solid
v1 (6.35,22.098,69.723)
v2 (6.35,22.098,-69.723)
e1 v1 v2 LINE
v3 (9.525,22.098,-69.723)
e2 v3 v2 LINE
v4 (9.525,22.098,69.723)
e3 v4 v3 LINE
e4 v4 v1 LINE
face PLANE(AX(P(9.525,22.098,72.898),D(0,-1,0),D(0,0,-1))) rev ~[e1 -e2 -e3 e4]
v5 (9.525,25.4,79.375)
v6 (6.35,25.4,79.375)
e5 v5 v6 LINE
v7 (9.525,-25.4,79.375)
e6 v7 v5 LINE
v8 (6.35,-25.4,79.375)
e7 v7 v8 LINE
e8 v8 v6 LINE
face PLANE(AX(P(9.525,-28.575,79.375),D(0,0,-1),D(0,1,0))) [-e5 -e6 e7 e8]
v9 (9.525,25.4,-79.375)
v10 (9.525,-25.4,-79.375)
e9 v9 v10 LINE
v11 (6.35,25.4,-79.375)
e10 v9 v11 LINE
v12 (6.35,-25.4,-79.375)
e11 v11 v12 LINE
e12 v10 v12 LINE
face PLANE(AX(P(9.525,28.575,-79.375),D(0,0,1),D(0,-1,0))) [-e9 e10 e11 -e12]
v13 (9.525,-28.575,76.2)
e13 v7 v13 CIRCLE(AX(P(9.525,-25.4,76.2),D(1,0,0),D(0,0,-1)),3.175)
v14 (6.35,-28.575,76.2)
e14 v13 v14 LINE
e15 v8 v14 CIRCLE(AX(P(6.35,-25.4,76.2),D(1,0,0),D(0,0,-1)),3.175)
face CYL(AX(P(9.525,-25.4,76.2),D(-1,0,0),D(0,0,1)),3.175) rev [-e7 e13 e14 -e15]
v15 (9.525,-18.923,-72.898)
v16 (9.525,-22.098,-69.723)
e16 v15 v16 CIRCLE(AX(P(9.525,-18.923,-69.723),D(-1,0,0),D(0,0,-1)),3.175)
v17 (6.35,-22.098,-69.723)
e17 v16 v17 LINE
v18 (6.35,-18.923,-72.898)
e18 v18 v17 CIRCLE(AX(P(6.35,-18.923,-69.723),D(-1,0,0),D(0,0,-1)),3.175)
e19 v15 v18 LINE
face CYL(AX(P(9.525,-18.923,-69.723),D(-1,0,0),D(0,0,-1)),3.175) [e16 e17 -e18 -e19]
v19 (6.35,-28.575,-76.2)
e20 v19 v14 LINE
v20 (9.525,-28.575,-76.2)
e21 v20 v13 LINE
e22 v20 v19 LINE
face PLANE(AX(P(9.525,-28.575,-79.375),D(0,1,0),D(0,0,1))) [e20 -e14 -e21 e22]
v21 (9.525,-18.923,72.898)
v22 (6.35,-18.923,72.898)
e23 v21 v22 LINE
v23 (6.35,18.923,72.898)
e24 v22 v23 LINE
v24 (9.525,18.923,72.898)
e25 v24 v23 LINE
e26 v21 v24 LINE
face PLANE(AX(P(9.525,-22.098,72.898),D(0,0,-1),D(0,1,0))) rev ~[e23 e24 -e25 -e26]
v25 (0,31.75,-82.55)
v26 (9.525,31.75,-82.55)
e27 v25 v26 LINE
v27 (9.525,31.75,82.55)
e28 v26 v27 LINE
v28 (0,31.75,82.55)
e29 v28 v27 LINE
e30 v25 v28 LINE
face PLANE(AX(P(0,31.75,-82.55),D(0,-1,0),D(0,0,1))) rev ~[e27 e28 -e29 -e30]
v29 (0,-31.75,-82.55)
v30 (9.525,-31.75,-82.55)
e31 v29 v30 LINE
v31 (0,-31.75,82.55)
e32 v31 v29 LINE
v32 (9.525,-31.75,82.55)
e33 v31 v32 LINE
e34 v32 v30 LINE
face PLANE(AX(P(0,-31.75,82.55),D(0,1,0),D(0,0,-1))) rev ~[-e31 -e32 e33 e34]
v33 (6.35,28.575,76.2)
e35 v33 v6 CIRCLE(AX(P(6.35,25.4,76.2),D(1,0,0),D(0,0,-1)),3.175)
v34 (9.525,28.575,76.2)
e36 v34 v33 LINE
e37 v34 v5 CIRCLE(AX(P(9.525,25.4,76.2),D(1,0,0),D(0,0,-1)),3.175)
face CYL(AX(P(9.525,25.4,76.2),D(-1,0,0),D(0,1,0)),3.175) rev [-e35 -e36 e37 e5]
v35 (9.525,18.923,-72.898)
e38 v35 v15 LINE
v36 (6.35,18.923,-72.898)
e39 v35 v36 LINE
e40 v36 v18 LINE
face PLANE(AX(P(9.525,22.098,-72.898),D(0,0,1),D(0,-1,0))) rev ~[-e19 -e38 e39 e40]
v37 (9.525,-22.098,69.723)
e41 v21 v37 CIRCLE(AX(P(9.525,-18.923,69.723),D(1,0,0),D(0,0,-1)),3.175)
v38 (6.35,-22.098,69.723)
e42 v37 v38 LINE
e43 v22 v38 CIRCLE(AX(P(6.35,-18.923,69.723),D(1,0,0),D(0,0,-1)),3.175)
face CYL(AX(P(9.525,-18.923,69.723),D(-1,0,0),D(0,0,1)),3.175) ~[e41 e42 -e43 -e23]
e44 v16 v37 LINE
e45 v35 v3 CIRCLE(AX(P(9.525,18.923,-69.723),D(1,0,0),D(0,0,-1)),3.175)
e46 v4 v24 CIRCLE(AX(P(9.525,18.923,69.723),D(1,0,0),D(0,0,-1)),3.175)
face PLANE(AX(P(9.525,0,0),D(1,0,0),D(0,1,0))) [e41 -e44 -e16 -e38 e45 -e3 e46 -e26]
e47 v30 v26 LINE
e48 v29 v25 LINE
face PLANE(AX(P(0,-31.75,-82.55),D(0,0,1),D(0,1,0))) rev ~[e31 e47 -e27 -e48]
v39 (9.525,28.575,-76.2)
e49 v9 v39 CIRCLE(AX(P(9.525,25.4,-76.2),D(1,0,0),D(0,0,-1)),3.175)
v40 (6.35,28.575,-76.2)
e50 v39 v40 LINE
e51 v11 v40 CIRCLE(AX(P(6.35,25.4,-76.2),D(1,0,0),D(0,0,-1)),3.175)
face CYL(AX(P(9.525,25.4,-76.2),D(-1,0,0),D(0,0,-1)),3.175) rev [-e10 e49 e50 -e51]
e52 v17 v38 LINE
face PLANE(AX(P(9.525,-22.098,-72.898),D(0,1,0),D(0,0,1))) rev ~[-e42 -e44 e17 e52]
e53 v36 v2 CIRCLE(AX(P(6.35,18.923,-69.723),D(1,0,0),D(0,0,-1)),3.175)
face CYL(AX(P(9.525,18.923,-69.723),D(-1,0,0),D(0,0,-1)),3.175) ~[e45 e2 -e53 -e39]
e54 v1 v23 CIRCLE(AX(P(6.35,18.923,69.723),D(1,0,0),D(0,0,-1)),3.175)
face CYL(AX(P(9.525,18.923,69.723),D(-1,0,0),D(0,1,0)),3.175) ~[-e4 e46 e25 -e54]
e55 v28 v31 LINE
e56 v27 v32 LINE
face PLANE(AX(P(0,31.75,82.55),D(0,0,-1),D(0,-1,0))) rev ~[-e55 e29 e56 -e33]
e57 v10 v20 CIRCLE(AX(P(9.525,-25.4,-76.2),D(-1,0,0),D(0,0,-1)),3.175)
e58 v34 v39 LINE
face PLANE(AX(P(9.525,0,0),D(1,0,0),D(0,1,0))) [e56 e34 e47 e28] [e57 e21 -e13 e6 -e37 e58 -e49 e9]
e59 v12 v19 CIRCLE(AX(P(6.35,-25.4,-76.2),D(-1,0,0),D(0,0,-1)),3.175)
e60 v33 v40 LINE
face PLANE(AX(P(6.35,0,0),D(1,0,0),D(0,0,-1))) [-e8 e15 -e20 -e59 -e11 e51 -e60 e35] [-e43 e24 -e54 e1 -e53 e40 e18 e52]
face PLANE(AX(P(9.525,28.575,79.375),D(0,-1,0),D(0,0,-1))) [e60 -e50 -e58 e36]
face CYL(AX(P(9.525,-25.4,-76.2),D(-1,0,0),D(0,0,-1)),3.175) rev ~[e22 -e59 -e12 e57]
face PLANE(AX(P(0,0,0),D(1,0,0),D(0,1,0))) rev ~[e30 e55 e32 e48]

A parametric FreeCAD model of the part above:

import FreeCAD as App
import Part
import Sketcher
Q = App.Units.Quantity


def edges_at(feature, points):
    """Names of the edges that pass closest to the given points."""
    edges = feature.Shape.Edges
    near = lambda p: min(range(len(edges)), key=lambda i: edges[i].distToShape(Part.Vertex(*p))[0])
    return sorted({f"Edge{near(p) + 1}" for p in points})

doc = App.newDocument("Part")
params = doc.addObject("Spreadsheet::Sheet", "Params")
for row, (alias, value) in enumerate([
    ("sketch1_width", "2.5 in"),
    ("sketch1_height", "6.5 in"),
    ("pad1_length", "0.375 in"),
    ("sketch2_width", "1.74 in"),
    ("sketch2_height", "5.74 in"),
    ("pocket1_length", "0.125 in"),
    ("fillet_radius", "0.125 in"),
], start=1):
    params.set(f"A{row}", alias)
    params.set(f"B{row}", "=" + value)
    params.setAlias(f"B{row}", alias)

body = doc.addObject("PartDesign::Body", "Body")

# Sketch on YZ plane
sketch1 = doc.addObject("Sketcher::SketchObject", "Sketch")
body.addObject(sketch1)
sketch1.AttachmentSupport = (doc.YZ_Plane, [""])
sketch1.MapMode = "FlatFace"
sketch1.addGeometry([
    Part.LineSegment(App.Vector(32, -83, 0), App.Vector(32, 83, 0)),
    Part.LineSegment(App.Vector(32, 83, 0), App.Vector(-32, 83, 0)),
    Part.LineSegment(App.Vector(-32, 83, 0), App.Vector(-32, -83, 0)),
    Part.LineSegment(App.Vector(-32, -83, 0), App.Vector(32, -83, 0)),
], False)
sketch1.addConstraint([
    Sketcher.Constraint("Coincident", 0, 2, 1, 1),
    Sketcher.Constraint("Coincident", 1, 2, 2, 1),
    Sketcher.Constraint("Coincident", 2, 2, 3, 1),
    Sketcher.Constraint("Coincident", 3, 2, 0, 1),
    Sketcher.Constraint("Vertical", 0),
    Sketcher.Constraint("Horizontal", 1),
    Sketcher.Constraint("Vertical", 2),
    Sketcher.Constraint("Horizontal", 3),
    Sketcher.Constraint("Symmetric", 0, 2, 2, 2, -1, 1),
    Sketcher.Constraint("DistanceX", 1, 2, 1, 1, Q("2.5 in")),
    Sketcher.Constraint("DistanceY", 0, 1, 0, 2, Q("6.5 in")),
])
sketch1.setExpression("Constraints[9]", "Params.sketch1_width")
sketch1.setExpression("Constraints[10]", "Params.sketch1_height")
pad1 = doc.addObject("PartDesign::Pad", "Pad")
body.addObject(pad1)
pad1.Profile = sketch1
pad1.setExpression("Length", "Params.pad1_length")

# Sketch on YZ plane
sketch2 = doc.addObject("Sketcher::SketchObject", "Sketch001")
body.addObject(sketch2)
sketch2.AttachmentSupport = (doc.YZ_Plane, [""])
sketch2.MapMode = "FlatFace"
sketch2.AttachmentOffset = App.Placement(App.Vector(0, 0, 0.375 * 25.4), App.Rotation())
sketch2.addGeometry([
    Part.LineSegment(App.Vector(-29, 79, 0), App.Vector(-29, -79, 0)),  # 0
    Part.LineSegment(App.Vector(-29, -79, 0), App.Vector(29, -79, 0)),  # 1
    Part.LineSegment(App.Vector(29, -79, 0), App.Vector(29, 79, 0)),  # 2
    Part.LineSegment(App.Vector(29, 79, 0), App.Vector(-29, 79, 0)),  # 3
    Part.LineSegment(App.Vector(22, -73, 0), App.Vector(-22, -73, 0)),  # 4
    Part.LineSegment(App.Vector(-22, -73, 0), App.Vector(-22, 73, 0)),  # 5
    Part.LineSegment(App.Vector(-22, 73, 0), App.Vector(22, 73, 0)),  # 6
    Part.LineSegment(App.Vector(22, 73, 0), App.Vector(22, -73, 0)),  # 7
], False)
sketch2.addConstraint([
    Sketcher.Constraint("Coincident", 0, 2, 1, 1),
    Sketcher.Constraint("Coincident", 1, 2, 2, 1),
    Sketcher.Constraint("Coincident", 2, 2, 3, 1),
    Sketcher.Constraint("Coincident", 3, 2, 0, 1),
    Sketcher.Constraint("Coincident", 4, 2, 5, 1),
    Sketcher.Constraint("Coincident", 5, 2, 6, 1),
    Sketcher.Constraint("Coincident", 6, 2, 7, 1),
    Sketcher.Constraint("Coincident", 7, 2, 4, 1),
    Sketcher.Constraint("Vertical", 0),
    Sketcher.Constraint("Horizontal", 1),
    Sketcher.Constraint("Vertical", 2),
    Sketcher.Constraint("Horizontal", 3),
    Sketcher.Constraint("Horizontal", 4),
    Sketcher.Constraint("Vertical", 5),
    Sketcher.Constraint("Horizontal", 6),
    Sketcher.Constraint("Vertical", 7),
    Sketcher.Constraint("Symmetric", 0, 2, 2, 2, -1, 1),
    Sketcher.Constraint("Symmetric", 4, 2, 6, 2, -1, 1),
    Sketcher.Constraint("DistanceX", 4, 2, 4, 1, Q("1.74 in")),
    Sketcher.Constraint("DistanceY", 5, 1, 5, 2, Q("5.74 in")),
    Sketcher.Constraint("DistanceX", 0, 2, 4, 2, Q("0.255 in")),
    Sketcher.Constraint("DistanceY", 0, 2, 4, 2, Q("0.255 in")),
])
sketch2.setExpression("Constraints[18]", "Params.sketch2_width")
sketch2.setExpression("Constraints[19]", "Params.sketch2_height")
pocket1 = doc.addObject("PartDesign::Pocket", "Pocket")
body.addObject(pocket1)
pocket1.Profile = sketch2
pocket1.setExpression("Length", "Params.pocket1_length")
doc.recompute()

fillet = doc.addObject("PartDesign::Fillet", "Fillet")
body.addObject(fillet)
fillet.Base = (pocket1, edges_at(pocket1, [
    (7.938, -28.575, 79.375),
    (7.938, 28.575, 79.375),
    (7.938, 28.575, -79.375),
    (7.938, -28.575, -79.375),
    (7.938, -22.098, 72.898),
    (7.938, 22.098, 72.898),
    (7.938, 22.098, -72.898),
    (7.938, -22.098, -72.898),
]))
fillet.setExpression("Radius", "Params.fillet_radius")

doc.recompute()
